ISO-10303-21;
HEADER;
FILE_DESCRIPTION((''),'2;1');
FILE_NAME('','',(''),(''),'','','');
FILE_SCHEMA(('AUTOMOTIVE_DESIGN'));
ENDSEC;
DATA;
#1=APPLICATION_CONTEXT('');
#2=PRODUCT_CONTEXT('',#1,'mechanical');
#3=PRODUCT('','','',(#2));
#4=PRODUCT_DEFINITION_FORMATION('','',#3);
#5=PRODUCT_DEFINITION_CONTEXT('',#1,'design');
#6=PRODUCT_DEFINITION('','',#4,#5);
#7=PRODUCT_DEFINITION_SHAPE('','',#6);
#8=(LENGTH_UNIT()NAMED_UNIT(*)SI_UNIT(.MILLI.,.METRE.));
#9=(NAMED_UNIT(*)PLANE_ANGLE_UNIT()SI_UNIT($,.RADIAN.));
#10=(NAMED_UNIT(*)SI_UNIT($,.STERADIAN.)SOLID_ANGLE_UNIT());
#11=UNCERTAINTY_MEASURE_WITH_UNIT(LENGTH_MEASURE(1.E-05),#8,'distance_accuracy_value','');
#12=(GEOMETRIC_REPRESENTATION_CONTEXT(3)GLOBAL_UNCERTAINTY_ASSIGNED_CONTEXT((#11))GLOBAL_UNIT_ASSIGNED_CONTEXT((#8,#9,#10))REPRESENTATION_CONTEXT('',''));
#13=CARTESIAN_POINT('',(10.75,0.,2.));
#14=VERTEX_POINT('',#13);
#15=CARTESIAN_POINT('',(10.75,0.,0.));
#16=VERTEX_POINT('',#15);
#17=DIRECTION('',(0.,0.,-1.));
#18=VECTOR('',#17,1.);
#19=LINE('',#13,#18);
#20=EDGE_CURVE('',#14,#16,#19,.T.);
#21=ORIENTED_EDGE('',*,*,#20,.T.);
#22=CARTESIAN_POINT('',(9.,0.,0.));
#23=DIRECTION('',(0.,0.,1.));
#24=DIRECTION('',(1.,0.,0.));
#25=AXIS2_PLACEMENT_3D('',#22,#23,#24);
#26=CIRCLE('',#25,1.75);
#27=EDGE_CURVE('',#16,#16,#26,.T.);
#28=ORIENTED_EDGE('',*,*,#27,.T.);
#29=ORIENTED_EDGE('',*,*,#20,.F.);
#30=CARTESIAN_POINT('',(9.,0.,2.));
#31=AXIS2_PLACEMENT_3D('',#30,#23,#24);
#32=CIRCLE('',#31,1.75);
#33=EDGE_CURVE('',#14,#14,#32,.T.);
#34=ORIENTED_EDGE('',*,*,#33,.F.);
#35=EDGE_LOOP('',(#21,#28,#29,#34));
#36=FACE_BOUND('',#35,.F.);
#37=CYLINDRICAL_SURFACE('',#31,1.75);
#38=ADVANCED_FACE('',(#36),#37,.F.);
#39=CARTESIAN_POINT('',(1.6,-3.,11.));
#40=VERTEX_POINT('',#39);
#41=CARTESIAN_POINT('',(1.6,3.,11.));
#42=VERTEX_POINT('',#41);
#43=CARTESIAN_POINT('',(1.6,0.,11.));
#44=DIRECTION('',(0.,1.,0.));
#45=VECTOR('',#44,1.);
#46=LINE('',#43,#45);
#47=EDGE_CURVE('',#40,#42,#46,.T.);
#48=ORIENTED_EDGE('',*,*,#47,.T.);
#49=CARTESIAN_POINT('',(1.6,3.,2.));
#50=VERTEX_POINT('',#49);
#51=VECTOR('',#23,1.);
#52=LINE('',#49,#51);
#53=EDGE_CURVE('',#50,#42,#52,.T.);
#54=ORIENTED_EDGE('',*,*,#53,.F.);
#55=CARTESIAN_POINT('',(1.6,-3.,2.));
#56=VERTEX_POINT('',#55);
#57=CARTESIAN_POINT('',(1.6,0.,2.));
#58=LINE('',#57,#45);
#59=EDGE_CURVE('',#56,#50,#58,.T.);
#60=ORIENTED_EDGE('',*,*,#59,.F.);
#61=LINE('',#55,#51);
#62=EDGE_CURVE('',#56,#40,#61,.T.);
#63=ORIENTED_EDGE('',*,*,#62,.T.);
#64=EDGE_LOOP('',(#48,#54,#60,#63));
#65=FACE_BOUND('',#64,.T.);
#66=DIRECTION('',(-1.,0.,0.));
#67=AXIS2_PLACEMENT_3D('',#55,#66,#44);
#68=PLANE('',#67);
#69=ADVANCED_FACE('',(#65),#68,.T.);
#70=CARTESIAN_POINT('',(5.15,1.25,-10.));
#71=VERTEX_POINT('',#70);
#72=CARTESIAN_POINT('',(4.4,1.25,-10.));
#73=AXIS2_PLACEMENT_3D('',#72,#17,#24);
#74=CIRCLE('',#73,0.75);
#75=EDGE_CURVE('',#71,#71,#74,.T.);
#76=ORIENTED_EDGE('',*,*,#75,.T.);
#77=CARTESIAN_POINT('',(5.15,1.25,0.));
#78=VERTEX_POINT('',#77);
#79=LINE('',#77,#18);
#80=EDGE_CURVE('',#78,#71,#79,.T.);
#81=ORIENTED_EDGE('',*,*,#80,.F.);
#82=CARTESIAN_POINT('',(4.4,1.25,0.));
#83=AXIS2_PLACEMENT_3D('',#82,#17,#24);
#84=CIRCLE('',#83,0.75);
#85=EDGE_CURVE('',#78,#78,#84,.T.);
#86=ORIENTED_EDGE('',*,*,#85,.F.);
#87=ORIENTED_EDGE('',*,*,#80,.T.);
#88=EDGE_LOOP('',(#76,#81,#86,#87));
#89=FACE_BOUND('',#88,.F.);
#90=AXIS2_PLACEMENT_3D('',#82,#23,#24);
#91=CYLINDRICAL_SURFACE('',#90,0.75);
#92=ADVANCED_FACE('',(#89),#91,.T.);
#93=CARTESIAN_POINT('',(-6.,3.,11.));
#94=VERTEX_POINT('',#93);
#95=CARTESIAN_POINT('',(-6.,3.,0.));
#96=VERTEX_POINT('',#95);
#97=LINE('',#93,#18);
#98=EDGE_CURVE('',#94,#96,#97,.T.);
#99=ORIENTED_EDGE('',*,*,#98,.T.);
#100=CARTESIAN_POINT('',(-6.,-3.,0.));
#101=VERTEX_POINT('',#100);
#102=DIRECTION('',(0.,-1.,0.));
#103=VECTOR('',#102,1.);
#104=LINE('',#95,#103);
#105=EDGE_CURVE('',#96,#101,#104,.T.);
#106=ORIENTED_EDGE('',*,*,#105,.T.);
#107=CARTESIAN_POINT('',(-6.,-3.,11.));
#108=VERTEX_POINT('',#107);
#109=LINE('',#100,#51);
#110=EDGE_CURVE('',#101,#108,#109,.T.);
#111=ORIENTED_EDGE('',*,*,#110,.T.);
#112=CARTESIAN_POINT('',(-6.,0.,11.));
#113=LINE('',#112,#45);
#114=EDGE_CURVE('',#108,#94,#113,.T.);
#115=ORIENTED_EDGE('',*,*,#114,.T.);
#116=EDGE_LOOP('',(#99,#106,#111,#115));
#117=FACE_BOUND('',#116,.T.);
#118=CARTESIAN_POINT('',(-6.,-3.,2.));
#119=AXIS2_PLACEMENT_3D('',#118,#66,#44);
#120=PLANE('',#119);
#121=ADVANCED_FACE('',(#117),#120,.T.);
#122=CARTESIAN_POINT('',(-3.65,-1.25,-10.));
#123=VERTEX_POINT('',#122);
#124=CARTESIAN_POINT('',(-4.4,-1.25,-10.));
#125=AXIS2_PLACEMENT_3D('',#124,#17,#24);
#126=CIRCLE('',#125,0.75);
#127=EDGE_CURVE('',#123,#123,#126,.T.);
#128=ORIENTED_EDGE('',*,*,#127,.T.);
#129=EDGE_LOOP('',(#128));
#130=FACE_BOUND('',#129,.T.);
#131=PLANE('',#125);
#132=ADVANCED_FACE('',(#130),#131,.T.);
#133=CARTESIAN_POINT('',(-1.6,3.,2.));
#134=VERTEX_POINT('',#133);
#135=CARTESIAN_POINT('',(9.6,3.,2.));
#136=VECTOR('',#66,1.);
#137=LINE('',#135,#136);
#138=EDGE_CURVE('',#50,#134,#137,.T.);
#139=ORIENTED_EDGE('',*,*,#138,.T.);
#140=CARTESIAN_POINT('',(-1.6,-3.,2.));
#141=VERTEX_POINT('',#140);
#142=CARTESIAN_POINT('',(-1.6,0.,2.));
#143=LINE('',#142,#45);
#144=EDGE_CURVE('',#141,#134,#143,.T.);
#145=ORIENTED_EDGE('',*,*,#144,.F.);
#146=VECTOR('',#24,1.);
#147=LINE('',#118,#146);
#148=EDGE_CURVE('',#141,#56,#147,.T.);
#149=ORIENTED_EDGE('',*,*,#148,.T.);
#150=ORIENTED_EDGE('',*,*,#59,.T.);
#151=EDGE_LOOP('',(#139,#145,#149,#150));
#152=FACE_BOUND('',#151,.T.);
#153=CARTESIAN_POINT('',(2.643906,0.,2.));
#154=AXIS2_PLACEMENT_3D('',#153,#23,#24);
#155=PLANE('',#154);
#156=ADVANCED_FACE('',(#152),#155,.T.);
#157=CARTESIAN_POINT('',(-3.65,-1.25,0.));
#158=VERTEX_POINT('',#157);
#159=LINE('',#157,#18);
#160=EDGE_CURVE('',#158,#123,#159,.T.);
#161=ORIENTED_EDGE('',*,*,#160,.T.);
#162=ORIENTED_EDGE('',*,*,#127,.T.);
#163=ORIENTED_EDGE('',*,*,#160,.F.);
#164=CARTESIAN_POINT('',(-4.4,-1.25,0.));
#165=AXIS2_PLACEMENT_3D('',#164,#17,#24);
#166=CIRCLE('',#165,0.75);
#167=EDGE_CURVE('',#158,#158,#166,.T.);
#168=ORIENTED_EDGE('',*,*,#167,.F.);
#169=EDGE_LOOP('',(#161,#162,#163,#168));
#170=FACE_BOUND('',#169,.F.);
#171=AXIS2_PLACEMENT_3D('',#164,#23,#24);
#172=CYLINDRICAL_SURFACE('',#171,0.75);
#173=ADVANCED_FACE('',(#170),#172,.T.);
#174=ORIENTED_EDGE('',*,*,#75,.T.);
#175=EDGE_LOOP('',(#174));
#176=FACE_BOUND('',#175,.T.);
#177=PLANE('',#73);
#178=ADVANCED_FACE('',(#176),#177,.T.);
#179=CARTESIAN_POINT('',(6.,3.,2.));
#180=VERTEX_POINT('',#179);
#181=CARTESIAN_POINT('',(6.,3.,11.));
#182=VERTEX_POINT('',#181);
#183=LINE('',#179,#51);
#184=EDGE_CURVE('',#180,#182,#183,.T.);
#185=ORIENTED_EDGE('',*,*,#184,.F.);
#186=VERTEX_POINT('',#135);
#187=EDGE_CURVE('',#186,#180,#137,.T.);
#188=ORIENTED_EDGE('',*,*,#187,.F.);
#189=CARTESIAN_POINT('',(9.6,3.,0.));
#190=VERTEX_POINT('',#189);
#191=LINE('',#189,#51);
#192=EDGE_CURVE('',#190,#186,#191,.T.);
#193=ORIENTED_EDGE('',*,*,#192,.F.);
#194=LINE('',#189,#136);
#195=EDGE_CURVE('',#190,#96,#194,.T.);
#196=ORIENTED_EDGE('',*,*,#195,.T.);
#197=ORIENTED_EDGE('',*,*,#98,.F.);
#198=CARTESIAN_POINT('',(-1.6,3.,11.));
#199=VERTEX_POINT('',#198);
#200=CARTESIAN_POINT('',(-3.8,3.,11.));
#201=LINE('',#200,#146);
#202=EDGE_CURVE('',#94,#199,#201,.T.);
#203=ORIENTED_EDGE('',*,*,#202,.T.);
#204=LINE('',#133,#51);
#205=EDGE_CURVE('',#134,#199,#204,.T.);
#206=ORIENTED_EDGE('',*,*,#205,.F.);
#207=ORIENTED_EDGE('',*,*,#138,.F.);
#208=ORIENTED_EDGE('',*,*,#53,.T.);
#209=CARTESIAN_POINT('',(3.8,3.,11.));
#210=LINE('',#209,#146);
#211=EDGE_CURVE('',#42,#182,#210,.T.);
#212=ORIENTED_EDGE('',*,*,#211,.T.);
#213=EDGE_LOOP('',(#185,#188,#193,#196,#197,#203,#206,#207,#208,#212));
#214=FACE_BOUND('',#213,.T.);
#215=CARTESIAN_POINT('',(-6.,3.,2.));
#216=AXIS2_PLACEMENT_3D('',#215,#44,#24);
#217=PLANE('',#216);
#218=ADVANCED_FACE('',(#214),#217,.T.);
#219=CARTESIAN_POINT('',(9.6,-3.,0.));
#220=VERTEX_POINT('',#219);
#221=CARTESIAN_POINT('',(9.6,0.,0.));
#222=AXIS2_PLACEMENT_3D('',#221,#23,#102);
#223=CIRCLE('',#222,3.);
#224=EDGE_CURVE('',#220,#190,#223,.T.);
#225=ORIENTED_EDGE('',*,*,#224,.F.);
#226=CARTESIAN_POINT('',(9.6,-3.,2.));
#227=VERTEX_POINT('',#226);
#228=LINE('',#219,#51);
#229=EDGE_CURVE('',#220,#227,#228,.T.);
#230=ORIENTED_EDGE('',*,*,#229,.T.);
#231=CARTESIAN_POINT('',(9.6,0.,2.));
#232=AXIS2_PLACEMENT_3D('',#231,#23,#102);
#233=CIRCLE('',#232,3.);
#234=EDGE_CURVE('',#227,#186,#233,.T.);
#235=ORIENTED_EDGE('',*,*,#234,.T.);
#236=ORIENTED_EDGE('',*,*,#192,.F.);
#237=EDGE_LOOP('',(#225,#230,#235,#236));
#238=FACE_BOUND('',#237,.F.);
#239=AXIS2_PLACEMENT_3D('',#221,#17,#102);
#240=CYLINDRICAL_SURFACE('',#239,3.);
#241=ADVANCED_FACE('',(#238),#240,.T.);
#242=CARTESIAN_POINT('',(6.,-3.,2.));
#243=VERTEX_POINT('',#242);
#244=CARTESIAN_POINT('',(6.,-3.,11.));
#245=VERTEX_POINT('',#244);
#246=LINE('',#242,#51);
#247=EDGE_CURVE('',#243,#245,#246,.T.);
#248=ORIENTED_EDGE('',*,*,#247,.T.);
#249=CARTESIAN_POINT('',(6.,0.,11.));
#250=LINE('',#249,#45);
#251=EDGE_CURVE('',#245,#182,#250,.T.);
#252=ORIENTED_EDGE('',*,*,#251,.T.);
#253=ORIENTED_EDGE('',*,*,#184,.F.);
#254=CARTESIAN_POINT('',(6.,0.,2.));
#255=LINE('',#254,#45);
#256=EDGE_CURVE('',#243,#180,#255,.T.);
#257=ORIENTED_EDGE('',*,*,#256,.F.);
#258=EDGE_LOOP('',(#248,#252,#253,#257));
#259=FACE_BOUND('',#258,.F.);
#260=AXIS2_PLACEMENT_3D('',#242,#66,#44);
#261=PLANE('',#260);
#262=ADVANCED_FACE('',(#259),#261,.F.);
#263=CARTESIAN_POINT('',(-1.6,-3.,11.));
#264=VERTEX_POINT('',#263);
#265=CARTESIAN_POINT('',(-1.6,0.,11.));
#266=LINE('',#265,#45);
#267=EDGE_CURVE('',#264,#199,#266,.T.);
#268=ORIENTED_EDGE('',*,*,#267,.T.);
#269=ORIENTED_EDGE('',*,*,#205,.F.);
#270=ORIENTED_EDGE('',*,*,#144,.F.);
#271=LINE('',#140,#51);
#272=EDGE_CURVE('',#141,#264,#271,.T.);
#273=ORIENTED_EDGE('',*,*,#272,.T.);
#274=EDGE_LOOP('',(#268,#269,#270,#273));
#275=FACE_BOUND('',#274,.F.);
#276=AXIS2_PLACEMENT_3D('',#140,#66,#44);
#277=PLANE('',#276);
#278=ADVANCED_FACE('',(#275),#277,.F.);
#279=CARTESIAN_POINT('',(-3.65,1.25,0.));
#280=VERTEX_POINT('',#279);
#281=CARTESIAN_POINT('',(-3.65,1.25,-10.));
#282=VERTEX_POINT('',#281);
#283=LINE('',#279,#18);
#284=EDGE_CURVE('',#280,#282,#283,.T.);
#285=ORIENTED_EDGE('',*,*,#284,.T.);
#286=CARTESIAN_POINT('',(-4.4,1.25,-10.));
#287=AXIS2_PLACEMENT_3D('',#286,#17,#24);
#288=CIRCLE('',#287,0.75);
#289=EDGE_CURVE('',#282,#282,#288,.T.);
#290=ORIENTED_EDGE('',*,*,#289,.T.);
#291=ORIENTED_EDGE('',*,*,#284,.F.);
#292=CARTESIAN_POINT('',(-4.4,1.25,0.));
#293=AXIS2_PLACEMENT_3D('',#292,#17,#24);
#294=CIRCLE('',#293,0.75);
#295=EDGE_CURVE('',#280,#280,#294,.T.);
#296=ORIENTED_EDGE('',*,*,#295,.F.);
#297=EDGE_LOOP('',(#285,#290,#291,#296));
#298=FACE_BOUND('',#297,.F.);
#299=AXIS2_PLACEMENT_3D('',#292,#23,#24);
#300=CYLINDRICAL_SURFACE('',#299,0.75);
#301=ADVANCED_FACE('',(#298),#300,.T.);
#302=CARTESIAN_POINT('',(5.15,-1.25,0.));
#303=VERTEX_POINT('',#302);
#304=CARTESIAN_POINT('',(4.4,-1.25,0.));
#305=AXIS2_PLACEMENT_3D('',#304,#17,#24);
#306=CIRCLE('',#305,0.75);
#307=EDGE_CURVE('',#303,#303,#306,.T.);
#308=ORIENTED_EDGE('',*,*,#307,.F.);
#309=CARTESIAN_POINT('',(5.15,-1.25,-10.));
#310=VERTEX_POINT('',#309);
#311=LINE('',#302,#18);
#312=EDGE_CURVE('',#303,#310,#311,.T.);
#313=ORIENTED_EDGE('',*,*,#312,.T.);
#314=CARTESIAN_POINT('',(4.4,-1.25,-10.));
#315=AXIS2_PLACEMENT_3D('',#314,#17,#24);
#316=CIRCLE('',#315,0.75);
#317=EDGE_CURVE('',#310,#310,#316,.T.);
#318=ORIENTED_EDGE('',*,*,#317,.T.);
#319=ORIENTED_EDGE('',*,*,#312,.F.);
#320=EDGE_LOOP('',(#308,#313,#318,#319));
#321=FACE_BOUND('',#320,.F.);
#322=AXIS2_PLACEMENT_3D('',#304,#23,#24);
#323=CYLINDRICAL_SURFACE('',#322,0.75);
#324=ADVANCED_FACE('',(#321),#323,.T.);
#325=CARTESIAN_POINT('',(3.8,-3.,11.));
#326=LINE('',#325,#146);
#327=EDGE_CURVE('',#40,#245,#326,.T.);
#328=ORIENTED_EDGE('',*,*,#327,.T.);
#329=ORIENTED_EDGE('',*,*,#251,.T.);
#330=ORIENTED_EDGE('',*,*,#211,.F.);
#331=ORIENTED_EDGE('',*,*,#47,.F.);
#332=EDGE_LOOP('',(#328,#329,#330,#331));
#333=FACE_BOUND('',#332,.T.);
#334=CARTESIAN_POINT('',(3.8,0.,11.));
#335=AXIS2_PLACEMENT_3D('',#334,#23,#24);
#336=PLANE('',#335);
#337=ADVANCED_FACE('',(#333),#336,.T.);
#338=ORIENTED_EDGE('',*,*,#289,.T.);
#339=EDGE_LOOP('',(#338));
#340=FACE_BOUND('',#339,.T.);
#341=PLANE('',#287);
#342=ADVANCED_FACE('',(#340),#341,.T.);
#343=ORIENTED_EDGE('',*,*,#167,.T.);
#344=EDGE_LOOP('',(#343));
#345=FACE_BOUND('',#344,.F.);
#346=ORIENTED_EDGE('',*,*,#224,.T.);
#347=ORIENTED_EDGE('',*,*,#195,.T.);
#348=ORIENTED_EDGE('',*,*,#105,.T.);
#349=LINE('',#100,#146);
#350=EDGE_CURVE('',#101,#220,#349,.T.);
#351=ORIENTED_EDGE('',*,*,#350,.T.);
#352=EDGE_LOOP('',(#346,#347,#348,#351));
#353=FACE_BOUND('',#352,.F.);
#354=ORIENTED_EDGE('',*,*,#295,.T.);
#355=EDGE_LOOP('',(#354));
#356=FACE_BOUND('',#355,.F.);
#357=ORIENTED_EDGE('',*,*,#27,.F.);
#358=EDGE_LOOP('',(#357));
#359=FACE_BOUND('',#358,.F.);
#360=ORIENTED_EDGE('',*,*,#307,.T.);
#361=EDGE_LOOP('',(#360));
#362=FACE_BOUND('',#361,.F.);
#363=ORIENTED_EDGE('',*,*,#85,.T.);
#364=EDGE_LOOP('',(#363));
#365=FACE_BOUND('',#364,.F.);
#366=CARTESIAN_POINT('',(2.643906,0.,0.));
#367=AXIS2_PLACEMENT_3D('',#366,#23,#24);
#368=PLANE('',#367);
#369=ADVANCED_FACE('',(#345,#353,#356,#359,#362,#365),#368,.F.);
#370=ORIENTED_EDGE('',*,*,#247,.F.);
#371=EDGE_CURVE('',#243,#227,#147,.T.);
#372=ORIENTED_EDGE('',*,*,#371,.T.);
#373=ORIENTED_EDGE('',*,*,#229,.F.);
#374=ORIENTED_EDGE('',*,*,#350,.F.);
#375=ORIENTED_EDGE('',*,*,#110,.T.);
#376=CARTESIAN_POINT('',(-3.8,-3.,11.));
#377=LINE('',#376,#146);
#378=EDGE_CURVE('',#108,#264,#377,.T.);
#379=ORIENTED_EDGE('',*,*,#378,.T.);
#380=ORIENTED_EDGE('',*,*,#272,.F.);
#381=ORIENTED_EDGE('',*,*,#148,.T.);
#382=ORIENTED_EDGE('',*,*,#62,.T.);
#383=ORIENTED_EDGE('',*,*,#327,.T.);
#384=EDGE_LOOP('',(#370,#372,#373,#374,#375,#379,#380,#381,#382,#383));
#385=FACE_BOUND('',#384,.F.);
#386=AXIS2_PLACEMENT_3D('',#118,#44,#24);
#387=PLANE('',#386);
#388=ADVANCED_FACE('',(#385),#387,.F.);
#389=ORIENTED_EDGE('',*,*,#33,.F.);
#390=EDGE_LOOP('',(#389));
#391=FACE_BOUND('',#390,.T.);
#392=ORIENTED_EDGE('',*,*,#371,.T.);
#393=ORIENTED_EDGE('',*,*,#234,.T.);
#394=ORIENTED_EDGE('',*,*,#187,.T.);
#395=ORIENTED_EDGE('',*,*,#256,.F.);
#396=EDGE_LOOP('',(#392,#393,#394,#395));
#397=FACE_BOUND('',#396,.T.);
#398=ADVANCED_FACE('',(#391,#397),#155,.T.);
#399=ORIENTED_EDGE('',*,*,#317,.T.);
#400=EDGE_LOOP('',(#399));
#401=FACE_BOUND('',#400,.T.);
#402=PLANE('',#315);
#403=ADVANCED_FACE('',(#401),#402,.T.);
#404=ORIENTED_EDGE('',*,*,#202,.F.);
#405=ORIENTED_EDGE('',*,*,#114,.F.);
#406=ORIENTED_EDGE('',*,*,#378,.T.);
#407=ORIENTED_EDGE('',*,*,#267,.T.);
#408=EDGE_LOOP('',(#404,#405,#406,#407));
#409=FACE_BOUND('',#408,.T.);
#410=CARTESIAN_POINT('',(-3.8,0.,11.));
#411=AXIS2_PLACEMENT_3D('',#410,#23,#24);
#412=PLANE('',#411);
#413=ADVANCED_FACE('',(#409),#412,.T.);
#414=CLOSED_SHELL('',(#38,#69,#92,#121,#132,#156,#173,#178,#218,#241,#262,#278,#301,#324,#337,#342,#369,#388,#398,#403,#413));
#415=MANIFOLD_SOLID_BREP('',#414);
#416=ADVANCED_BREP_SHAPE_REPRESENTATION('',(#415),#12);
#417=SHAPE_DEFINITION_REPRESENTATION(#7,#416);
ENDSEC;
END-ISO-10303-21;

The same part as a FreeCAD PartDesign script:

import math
import FreeCAD as App
import Part
import Sketcher

V = App.Vector


def add_polygon(sketch, points):
    """Adds a closed chain of lines whose ends are joined by coincident constraints."""
    first, n = sketch.GeometryCount, len(points)
    for a, b in zip(points, points[1:] + points[:1]):
        sketch.addGeometry(Part.LineSegment(App.Vector(*a, 0), App.Vector(*b, 0)), False)
    for i in range(n):
        sketch.addConstraint(Sketcher.Constraint("Coincident", first + i, 2, first + (i + 1) % n, 1))

doc = App.newDocument("Part")
params = doc.addObject("Spreadsheet::Sheet", "Params")
for row, (alias, value) in enumerate([
    ("sketch1_radius", "3 mm"),
    ("sketch1_width", "15.6 mm"),
    ("pad1_length", "2 mm"),
    ("sketch2_height", "6 mm"),
    ("sketch2_width", "4.4 mm"),
    ("pad2_length", "9 mm"),
    ("sketch3_diameter", "1.5 mm"),
    ("pad3_length", "10 mm"),
    ("sketch4_diameter", "3.5 mm"),
], start=1):
    params.set(f"A{row}", alias)
    params.set(f"B{row}", "=" + value)
    params.setAlias(f"B{row}", alias)

body = doc.addObject("PartDesign::Body", "Body")

# Sketch on XY plane
sketch1 = doc.addObject("Sketcher::SketchObject", "Sketch")
body.addObject(sketch1)
sketch1.AttachmentSupport = (doc.XY_Plane, [""])
sketch1.MapMode = "FlatFace"
sketch1.addGeometry(Part.LineSegment(V(-6, 3, 0), V(-6, -3, 0)), False)
sketch1.addGeometry(Part.LineSegment(V(-6, -3, 0), V(9.6, -3, 0)), False)
sketch1.addGeometry(Part.ArcOfCircle(Part.Circle(V(9.6, 0, 0), V(0, 0, 1), 3), math.radians(-90), math.radians(90)), False)
sketch1.addGeometry(Part.LineSegment(V(9.6, 3, 0), V(-6, 3, 0)), False)
sketch1.addConstraint(Sketcher.Constraint("Coincident", 0, 2, 1, 1))
sketch1.addConstraint(Sketcher.Constraint("Tangent", 1, 2, 2, 1))
sketch1.addConstraint(Sketcher.Constraint("Tangent", 2, 2, 3, 1))
sketch1.addConstraint(Sketcher.Constraint("Coincident", 3, 2, 0, 1))
sketch1.addConstraint(Sketcher.Constraint("Vertical", 0))
sketch1.addConstraint(Sketcher.Constraint("Horizontal", 1))
sketch1.addConstraint(Sketcher.Constraint("Horizontal", 3))
sketch1.addConstraint(Sketcher.Constraint("PointOnObject", 2, 3, -1))
sketch1.addConstraint(Sketcher.Constraint("Radius", 2, 3.0))
sketch1.addConstraint(Sketcher.Constraint("DistanceX", 1, 1, 1, 2, 15.6))
sketch1.addConstraint(Sketcher.Constraint("DistanceX", 0, 2, -1, 1, 6.0))
sketch1.setExpression("Constraints[8]", "Params.sketch1_radius")
sketch1.setExpression("Constraints[9]", "Params.sketch1_width")
pad1 = doc.addObject("PartDesign::Pad", "Pad")
body.addObject(pad1)
pad1.Profile = sketch1
pad1.setExpression("Length", "Params.pad1_length")

# Sketch on XY plane
sketch2 = doc.addObject("Sketcher::SketchObject", "Sketch001")
body.addObject(sketch2)
sketch2.AttachmentSupport = (doc.XY_Plane, [""])
sketch2.MapMode = "FlatFace"
sketch2.AttachmentOffset = App.Placement(V(0, 0, 2), App.Rotation())
add_polygon(sketch2, [(-6, 3), (-6, -3), (-1.6, -3), (-1.6, 3)])  # lines 0-3
add_polygon(sketch2, [(1.6, 3), (1.6, -3), (6, -3), (6, 3)])  # lines 4-7
sketch2.addConstraint(Sketcher.Constraint("Vertical", 0))
sketch2.addConstraint(Sketcher.Constraint("Horizontal", 1))
sketch2.addConstraint(Sketcher.Constraint("Vertical", 2))
sketch2.addConstraint(Sketcher.Constraint("Horizontal", 3))
sketch2.addConstraint(Sketcher.Constraint("Vertical", 4))
sketch2.addConstraint(Sketcher.Constraint("Horizontal", 5))
sketch2.addConstraint(Sketcher.Constraint("Vertical", 6))
sketch2.addConstraint(Sketcher.Constraint("Horizontal", 7))
sketch2.addConstraint(Sketcher.Constraint("Symmetric", 2, 2, 4, 2, -1, 1))
sketch2.addConstraint(Sketcher.Constraint("Symmetric", 0, 2, 6, 2, -1, 1))
sketch2.addConstraint(Sketcher.Constraint("Horizontal", 1, 2, 4, 2))
sketch2.addConstraint(Sketcher.Constraint("DistanceY", 0, 2, 0, 1, 6.0))
sketch2.addConstraint(Sketcher.Constraint("DistanceX", 1, 1, 1, 2, 4.4))
sketch2.addConstraint(Sketcher.Constraint("DistanceX", 0, 2, -1, 1, 6.0))
sketch2.setExpression("Constraints[19]", "Params.sketch2_height")
sketch2.setExpression("Constraints[20]", "Params.sketch2_width")
pad2 = doc.addObject("PartDesign::Pad", "Pad001")
body.addObject(pad2)
pad2.Profile = sketch2
pad2.setExpression("Length", "Params.pad2_length")

# Sketch on XY plane
sketch3 = doc.addObject("Sketcher::SketchObject", "Sketch002")
body.addObject(sketch3)
sketch3.AttachmentSupport = (doc.XY_Plane, [""])
sketch3.MapMode = "FlatFace"
sketch3.addGeometry(Part.Circle(V(-4.4, -1.2, 0), V(0, 0, 1), 0.8), False)
sketch3.addGeometry(Part.Circle(V(4.4, -1.2, 0), V(0, 0, 1), 0.8), False)
sketch3.addGeometry(Part.Circle(V(4.4, 1.2, 0), V(0, 0, 1), 0.8), False)
sketch3.addGeometry(Part.Circle(V(-4.4, 1.2, 0), V(0, 0, 1), 0.8), False)
sketch3.addConstraint(Sketcher.Constraint("Equal", 0, 1))
sketch3.addConstraint(Sketcher.Constraint("Equal", 1, 2))
sketch3.addConstraint(Sketcher.Constraint("Equal", 2, 3))
sketch3.addConstraint(Sketcher.Constraint("Symmetric", 0, 3, 2, 3, -1, 1))
sketch3.addConstraint(Sketcher.Constraint("Symmetric", 1, 3, 3, 3, -1, 1))
sketch3.addConstraint(Sketcher.Constraint("Symmetric", 0, 3, 1, 3, -2))
sketch3.addConstraint(Sketcher.Constraint("Diameter", 0, 1.5))
sketch3.addConstraint(Sketcher.Constraint("DistanceX", 0, 3, -1, 1, 4.4))
sketch3.addConstraint(Sketcher.Constraint("DistanceY", 1, 3, 2, 3, 2.5))
sketch3.setExpression("Constraints[6]", "Params.sketch3_diameter")
pad3 = doc.addObject("PartDesign::Pad", "Pad002")
body.addObject(pad3)
pad3.Profile = sketch3
pad3.setExpression("Length", "Params.pad3_length")
pad3.Reversed = True

# Sketch on XY plane
sketch4 = doc.addObject("Sketcher::SketchObject", "Sketch003")
body.addObject(sketch4)
sketch4.AttachmentSupport = (doc.XY_Plane, [""])
sketch4.MapMode = "FlatFace"
sketch4.AttachmentOffset = App.Placement(V(0, 0, 2), App.Rotation())
sketch4.addGeometry(Part.Circle(V(9, 0, 0), V(0, 0, 1), 1.8), False)
sketch4.addConstraint(Sketcher.Constraint("PointOnObject", 0, 3, -1))
sketch4.addConstraint(Sketcher.Constraint("Diameter", 0, 3.5))
sketch4.addConstraint(Sketcher.Constraint("DistanceX", -1, 1, 0, 3, 9.0))
sketch4.setExpression("Constraints[1]", "Params.sketch4_diameter")
pocket1 = doc.addObject("PartDesign::Pocket", "Pocket")
body.addObject(pocket1)
pocket1.Profile = sketch4
pocket1.Type = "ThroughAll"

doc.recompute()
